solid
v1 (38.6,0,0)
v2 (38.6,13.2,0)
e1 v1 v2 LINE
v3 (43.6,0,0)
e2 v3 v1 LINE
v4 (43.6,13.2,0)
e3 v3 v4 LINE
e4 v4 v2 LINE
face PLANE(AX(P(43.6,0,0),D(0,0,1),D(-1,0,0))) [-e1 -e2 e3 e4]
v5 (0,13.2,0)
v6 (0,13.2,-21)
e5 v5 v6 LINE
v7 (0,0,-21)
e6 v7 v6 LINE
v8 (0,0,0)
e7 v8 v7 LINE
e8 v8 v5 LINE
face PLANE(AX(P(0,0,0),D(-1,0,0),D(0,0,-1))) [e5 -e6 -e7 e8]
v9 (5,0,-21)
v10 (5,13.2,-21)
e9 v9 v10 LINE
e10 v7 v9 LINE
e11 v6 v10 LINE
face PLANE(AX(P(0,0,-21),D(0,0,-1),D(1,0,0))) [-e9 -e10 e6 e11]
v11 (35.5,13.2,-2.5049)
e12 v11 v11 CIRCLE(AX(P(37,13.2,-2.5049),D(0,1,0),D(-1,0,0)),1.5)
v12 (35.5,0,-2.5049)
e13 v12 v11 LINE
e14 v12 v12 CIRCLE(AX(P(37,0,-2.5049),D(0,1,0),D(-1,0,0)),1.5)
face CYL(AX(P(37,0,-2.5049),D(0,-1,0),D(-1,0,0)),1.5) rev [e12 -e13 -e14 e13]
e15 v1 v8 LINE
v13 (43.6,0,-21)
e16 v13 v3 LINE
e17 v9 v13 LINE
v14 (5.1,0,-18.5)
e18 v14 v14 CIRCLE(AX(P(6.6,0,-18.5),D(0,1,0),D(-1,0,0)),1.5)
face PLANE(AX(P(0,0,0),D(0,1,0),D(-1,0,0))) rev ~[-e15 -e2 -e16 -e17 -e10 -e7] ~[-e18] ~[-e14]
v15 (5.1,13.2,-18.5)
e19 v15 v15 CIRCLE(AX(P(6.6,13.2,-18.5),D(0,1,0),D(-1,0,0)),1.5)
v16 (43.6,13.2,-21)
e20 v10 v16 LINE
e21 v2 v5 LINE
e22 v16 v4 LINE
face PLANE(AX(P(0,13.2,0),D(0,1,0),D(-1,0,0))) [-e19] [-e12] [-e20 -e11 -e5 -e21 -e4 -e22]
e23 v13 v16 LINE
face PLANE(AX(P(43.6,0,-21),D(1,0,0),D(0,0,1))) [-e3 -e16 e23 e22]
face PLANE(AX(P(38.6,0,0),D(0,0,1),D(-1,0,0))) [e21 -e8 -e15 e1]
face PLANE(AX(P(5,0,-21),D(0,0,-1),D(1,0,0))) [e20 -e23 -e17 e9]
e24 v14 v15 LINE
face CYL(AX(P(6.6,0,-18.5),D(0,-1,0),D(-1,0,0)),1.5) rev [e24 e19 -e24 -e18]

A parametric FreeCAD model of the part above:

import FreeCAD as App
import Part
import Sketcher
from FreeCAD import Vector


def add_polygon(sketch, points):
    """Adds a closed chain of lines whose ends are joined by coincident constraints."""
    first, n = sketch.GeometryCount, len(points)
    for a, b in zip(points, points[1:] + points[:1]):
        sketch.addGeometry(Part.LineSegment(App.Vector(*a, 0), App.Vector(*b, 0)), False)
    for i in range(n):
        sketch.addConstraint(Sketcher.Constraint("Coincident", first + i, 2, first + (i + 1) % n, 1))

doc = App.newDocument("Part")
body = doc.addObject("PartDesign::Body", "Body")

# Sketch on XZ plane
sketch1 = body.newObject("Sketcher::SketchObject", "Sketch")
sketch1.AttachmentSupport = (doc.getObject("XZ_Plane"), [""])
sketch1.MapMode = "FlatFace"
add_polygon(sketch1, [(0, -21), (0, 0), (43.6, 0), (43.6, -21)])  # lines 0-3
sketch1.addGeometry(Part.Circle(Vector(6.6, -18.5, 0), Vector(0, 0, 1), 1.5), False)  # 4
sketch1.addGeometry(Part.Circle(Vector(37, -2.5, 0), Vector(0, 0, 1), 1.5), False)  # 5
sketch1.addConstraint(Sketcher.Constraint("Vertical", 0))
sketch1.addConstraint(Sketcher.Constraint("Horizontal", 1))
sketch1.addConstraint(Sketcher.Constraint("Vertical", 2))
sketch1.addConstraint(Sketcher.Constraint("Horizontal", 3))
sketch1.addConstraint(Sketcher.Constraint("Coincident", 0, 2, -1, 1))
sketch1.addConstraint(Sketcher.Constraint("Equal", 4, 5))
sketch1.addConstraint(Sketcher.Constraint("Diameter", 4, 3.0))
sketch1.addConstraint(Sketcher.Constraint("DistanceY", 0, 1, 0, 2, 21.0))
sketch1.addConstraint(Sketcher.Constraint("DistanceX", 1, 1, 1, 2, 43.6))
sketch1.addConstraint(Sketcher.Constraint("DistanceX", -1, 1, 5, 3, 37.0))
sketch1.addConstraint(Sketcher.Constraint("DistanceX", 4, 3, 1, 2, 37.0))
sketch1.addConstraint(Sketcher.Constraint("DistanceY", 4, 3, -1, 1, 18.5))
sketch1.addConstraint(Sketcher.Constraint("DistanceY", 5, 3, -1, 1, 2.505))
pad1 = body.newObject("PartDesign::Pad", "Pad")
pad1.Profile = sketch1
pad1.Length = 13.2
pad1.Reversed = True

doc.recompute()
